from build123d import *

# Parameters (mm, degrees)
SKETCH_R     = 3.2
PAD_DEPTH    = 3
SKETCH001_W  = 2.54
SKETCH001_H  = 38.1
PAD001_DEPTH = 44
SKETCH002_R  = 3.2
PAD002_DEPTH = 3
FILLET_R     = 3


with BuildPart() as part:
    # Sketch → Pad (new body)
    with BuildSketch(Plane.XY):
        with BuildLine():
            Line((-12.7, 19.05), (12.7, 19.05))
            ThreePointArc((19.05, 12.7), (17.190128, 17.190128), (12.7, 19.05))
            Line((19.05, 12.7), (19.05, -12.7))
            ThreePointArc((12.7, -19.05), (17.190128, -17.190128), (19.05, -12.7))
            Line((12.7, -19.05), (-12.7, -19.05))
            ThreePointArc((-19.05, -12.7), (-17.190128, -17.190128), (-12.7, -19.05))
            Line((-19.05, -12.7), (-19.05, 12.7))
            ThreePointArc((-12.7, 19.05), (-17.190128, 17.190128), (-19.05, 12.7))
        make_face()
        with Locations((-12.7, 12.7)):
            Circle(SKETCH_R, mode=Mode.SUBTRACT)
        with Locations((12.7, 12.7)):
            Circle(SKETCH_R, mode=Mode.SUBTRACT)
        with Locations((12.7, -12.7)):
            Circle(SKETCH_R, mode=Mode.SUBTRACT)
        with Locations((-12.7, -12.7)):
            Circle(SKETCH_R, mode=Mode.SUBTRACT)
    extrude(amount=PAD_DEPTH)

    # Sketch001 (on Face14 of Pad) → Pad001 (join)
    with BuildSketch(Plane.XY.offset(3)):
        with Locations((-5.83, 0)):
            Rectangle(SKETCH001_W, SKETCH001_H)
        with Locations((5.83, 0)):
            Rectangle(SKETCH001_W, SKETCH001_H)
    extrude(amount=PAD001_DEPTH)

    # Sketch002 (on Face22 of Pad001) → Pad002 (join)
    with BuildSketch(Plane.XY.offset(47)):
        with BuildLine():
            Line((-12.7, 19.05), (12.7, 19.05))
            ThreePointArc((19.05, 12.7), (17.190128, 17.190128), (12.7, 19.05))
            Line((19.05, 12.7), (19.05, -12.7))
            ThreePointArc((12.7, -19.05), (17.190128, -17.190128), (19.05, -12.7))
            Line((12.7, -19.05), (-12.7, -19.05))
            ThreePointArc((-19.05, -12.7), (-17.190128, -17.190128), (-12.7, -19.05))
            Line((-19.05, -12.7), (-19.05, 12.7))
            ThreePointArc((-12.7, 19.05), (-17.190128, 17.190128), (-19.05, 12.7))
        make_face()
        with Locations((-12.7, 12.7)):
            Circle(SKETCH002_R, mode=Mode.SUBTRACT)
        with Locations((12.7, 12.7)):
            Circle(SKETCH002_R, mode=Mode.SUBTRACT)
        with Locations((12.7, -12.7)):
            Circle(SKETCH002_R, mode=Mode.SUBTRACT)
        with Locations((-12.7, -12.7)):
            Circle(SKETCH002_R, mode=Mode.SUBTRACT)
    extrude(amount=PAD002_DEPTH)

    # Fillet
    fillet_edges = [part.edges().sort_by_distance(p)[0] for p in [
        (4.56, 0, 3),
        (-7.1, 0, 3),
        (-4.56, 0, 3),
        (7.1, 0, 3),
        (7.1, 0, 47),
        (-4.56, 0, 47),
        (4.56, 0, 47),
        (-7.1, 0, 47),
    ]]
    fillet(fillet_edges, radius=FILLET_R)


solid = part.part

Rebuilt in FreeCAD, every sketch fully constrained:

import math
import FreeCAD as App
import Part
import Sketcher
Q = App.Units.Quantity


def edges_at(feature, points):
    """Names of the edges that pass closest to the given points."""
    edges = feature.Shape.Edges
    near = lambda p: min(range(len(edges)), key=lambda i: edges[i].distToShape(Part.Vertex(*p))[0])
    return sorted({f"Edge{near(p) + 1}" for p in points})

doc = App.newDocument("Part")
body = doc.addObject("PartDesign::Body", "Body")

sketch1 = body.newObject("Sketcher::SketchObject", "Sketch")
sketch1.AttachmentSupport = (doc.getObject("XY_Plane"), [""])
sketch1.MapMode = "FlatFace"
sketch1.addGeometry([
    Part.LineSegment(App.Vector(12.7, 19.1, 0), App.Vector(-12.7, 19.1, 0)),
    Part.ArcOfCircle(Part.Circle(App.Vector(-12.7, 12.7, 0), App.Vector(0, 0, 1), 6.4), math.radians(90), math.radians(180)),
    Part.LineSegment(App.Vector(-19.1, 12.7, 0), App.Vector(-19.1, -12.7, 0)),
    Part.ArcOfCircle(Part.Circle(App.Vector(-12.7, -12.7, 0), App.Vector(0, 0, 1), 6.4), math.radians(-180), math.radians(-90)),
    Part.LineSegment(App.Vector(-12.7, -19.1, 0), App.Vector(12.7, -19.1, 0)),
    Part.ArcOfCircle(Part.Circle(App.Vector(12.7, -12.7, 0), App.Vector(0, 0, 1), 6.4), math.radians(-90), math.radians(0)),
    Part.LineSegment(App.Vector(19.1, -12.7, 0), App.Vector(19.1, 12.7, 0)),
    Part.ArcOfCircle(Part.Circle(App.Vector(12.7, 12.7, 0), App.Vector(0, 0, 1), 6.4), math.radians(0), math.radians(90)),
    Part.Circle(App.Vector(12.7, -12.7, 0), App.Vector(0, 0, 1), 3.2),
    Part.Circle(App.Vector(-12.7, -12.7, 0), App.Vector(0, 0, 1), 3.2),
    Part.Circle(App.Vector(12.7, 12.7, 0), App.Vector(0, 0, 1), 3.2),
    Part.Circle(App.Vector(-12.7, 12.7, 0), App.Vector(0, 0, 1), 3.2),
], False)
sketch1.addConstraint([
    Sketcher.Constraint("Tangent", 0, 2, 1, 1),
    Sketcher.Constraint("Tangent", 1, 2, 2, 1),
    Sketcher.Constraint("Tangent", 2, 2, 3, 1),
    Sketcher.Constraint("Tangent", 3, 2, 4, 1),
    Sketcher.Constraint("Tangent", 4, 2, 5, 1),
    Sketcher.Constraint("Tangent", 5, 2, 6, 1),
    Sketcher.Constraint("Tangent", 6, 2, 7, 1),
    Sketcher.Constraint("Tangent", 7, 2, 0, 1),
    Sketcher.Constraint("Horizontal", 0),
    Sketcher.Constraint("Vertical", 2),
    Sketcher.Constraint("Horizontal", 4),
    Sketcher.Constraint("Vertical", 6),
    Sketcher.Constraint("Coincident", 8, 3, 5, 3),
    Sketcher.Constraint("Coincident", 9, 3, 3, 3),
    Sketcher.Constraint("Coincident", 10, 3, 7, 3),
    Sketcher.Constraint("Coincident", 11, 3, 1, 3),
    Sketcher.Constraint("Equal", 1, 3),
    Sketcher.Constraint("Equal", 3, 5),
    Sketcher.Constraint("Equal", 5, 7),
    Sketcher.Constraint("Equal", 8, 9),
    Sketcher.Constraint("Equal", 9, 10),
    Sketcher.Constraint("Equal", 10, 11),
    Sketcher.Constraint("Symmetric", 1, 3, 5, 3, -1, 1),
    Sketcher.Constraint("Equal", 4, 2),
    Sketcher.Constraint("DistanceX", 0, 2, 0, 1, Q("1 in")),
    Sketcher.Constraint("Radius", 1, Q("0.25 in")),
    Sketcher.Constraint("Diameter", 8, 6.4),
])
pad1 = body.newObject("PartDesign::Pad", "Pad")
pad1.Profile = sketch1
pad1.Length = 3

sketch2 = body.newObject("Sketcher::SketchObject", "Sketch001")
sketch2.AttachmentSupport = (doc.getObject("XY_Plane"), [""])
sketch2.MapMode = "FlatFace"
sketch2.AttachmentOffset = App.Placement(App.Vector(0, 0, 3), App.Rotation())
sketch2.addGeometry([
    Part.LineSegment(App.Vector(-7.1, 19.1, 0), App.Vector(-7.1, -19.1, 0)),
    Part.LineSegment(App.Vector(-7.1, -19.1, 0), App.Vector(-4.6, -19.1, 0)),
    Part.LineSegment(App.Vector(-4.6, -19.1, 0), App.Vector(-4.6, 19.1, 0)),
    Part.LineSegment(App.Vector(-4.6, 19.1, 0), App.Vector(-7.1, 19.1, 0)),
    Part.LineSegment(App.Vector(4.6, 19.1, 0), App.Vector(4.6, -19.1, 0)),
    Part.LineSegment(App.Vector(4.6, -19.1, 0), App.Vector(7.1, -19.1, 0)),
    Part.LineSegment(App.Vector(7.1, -19.1, 0), App.Vector(7.1, 19.1, 0)),
    Part.LineSegment(App.Vector(7.1, 19.1, 0), App.Vector(4.6, 19.1, 0)),
], False)
sketch2.addConstraint([
    Sketcher.Constraint("Coincident", 0, 2, 1, 1),
    Sketcher.Constraint("Coincident", 1, 2, 2, 1),
    Sketcher.Constraint("Coincident", 2, 2, 3, 1),
    Sketcher.Constraint("Coincident", 3, 2, 0, 1),
    Sketcher.Constraint("Coincident", 4, 2, 5, 1),
    Sketcher.Constraint("Coincident", 5, 2, 6, 1),
    Sketcher.Constraint("Coincident", 6, 2, 7, 1),
    Sketcher.Constraint("Coincident", 7, 2, 4, 1),
    Sketcher.Constraint("Vertical", 0),
    Sketcher.Constraint("Horizontal", 1),
    Sketcher.Constraint("Vertical", 2),
    Sketcher.Constraint("Horizontal", 3),
    Sketcher.Constraint("Vertical", 4),
    Sketcher.Constraint("Horizontal", 5),
    Sketcher.Constraint("Vertical", 6),
    Sketcher.Constraint("Horizontal", 7),
    Sketcher.Constraint("Symmetric", 2, 2, 4, 2, -1, 1),
    Sketcher.Constraint("Symmetric", 0, 2, 6, 2, -1, 1),
    Sketcher.Constraint("Horizontal", 1, 2, 4, 2),
    Sketcher.Constraint("DistanceX", 1, 1, 1, 2, Q("0.1 in")),
    Sketcher.Constraint("DistanceY", 0, 2, 0, 1, Q("1.5 in")),
    Sketcher.Constraint("DistanceX", 0, 2, -1, 1, 7.1),
])
pad2 = body.newObject("PartDesign::Pad", "Pad001")
pad2.Profile = sketch2
pad2.Length = 44

sketch3 = body.newObject("Sketcher::SketchObject", "Sketch002")
sketch3.AttachmentSupport = (doc.getObject("XY_Plane"), [""])
sketch3.MapMode = "FlatFace"
sketch3.AttachmentOffset = App.Placement(App.Vector(0, 0, 47), App.Rotation())
sketch3.addGeometry([
    Part.LineSegment(App.Vector(12.7, 19.1, 0), App.Vector(-12.7, 19.1, 0)),
    Part.ArcOfCircle(Part.Circle(App.Vector(-12.7, 12.7, 0), App.Vector(0, 0, 1), 6.4), math.radians(90), math.radians(180)),
    Part.LineSegment(App.Vector(-19.1, 12.7, 0), App.Vector(-19.1, -12.7, 0)),
    Part.ArcOfCircle(Part.Circle(App.Vector(-12.7, -12.7, 0), App.Vector(0, 0, 1), 6.4), math.radians(-180), math.radians(-90)),
    Part.LineSegment(App.Vector(-12.7, -19.1, 0), App.Vector(12.7, -19.1, 0)),
    Part.ArcOfCircle(Part.Circle(App.Vector(12.7, -12.7, 0), App.Vector(0, 0, 1), 6.4), math.radians(-90), math.radians(0)),
    Part.LineSegment(App.Vector(19.1, -12.7, 0), App.Vector(19.1, 12.7, 0)),
    Part.ArcOfCircle(Part.Circle(App.Vector(12.7, 12.7, 0), App.Vector(0, 0, 1), 6.4), math.radians(0), math.radians(90)),
    Part.Circle(App.Vector(12.7, -12.7, 0), App.Vector(0, 0, 1), 3.2),
    Part.Circle(App.Vector(-12.7, -12.7, 0), App.Vector(0, 0, 1), 3.2),
    Part.Circle(App.Vector(12.7, 12.7, 0), App.Vector(0, 0, 1), 3.2),
    Part.Circle(App.Vector(-12.7, 12.7, 0), App.Vector(0, 0, 1), 3.2),
], False)
sketch3.addConstraint([
    Sketcher.Constraint("Tangent", 0, 2, 1, 1),
    Sketcher.Constraint("Tangent", 1, 2, 2, 1),
    Sketcher.Constraint("Tangent", 2, 2, 3, 1),
    Sketcher.Constraint("Tangent", 3, 2, 4, 1),
    Sketcher.Constraint("Tangent", 4, 2, 5, 1),
    Sketcher.Constraint("Tangent", 5, 2, 6, 1),
    Sketcher.Constraint("Tangent", 6, 2, 7, 1),
    Sketcher.Constraint("Tangent", 7, 2, 0, 1),
    Sketcher.Constraint("Horizontal", 0),
    Sketcher.Constraint("Vertical", 2),
    Sketcher.Constraint("Horizontal", 4),
    Sketcher.Constraint("Vertical", 6),
    Sketcher.Constraint("Coincident", 8, 3, 5, 3),
    Sketcher.Constraint("Coincident", 9, 3, 3, 3),
    Sketcher.Constraint("Coincident", 10, 3, 7, 3),
    Sketcher.Constraint("Coincident", 11, 3, 1, 3),
    Sketcher.Constraint("Equal", 1, 3),
    Sketcher.Constraint("Equal", 3, 5),
    Sketcher.Constraint("Equal", 5, 7),
    Sketcher.Constraint("Equal", 8, 9),
    Sketcher.Constraint("Equal", 9, 10),
    Sketcher.Constraint("Equal", 10, 11),
    Sketcher.Constraint("Symmetric", 1, 3, 5, 3, -1, 1),
    Sketcher.Constraint("Equal", 4, 2),
    Sketcher.Constraint("DistanceX", 0, 2, 0, 1, Q("1 in")),
    Sketcher.Constraint("Radius", 1, Q("0.25 in")),
    Sketcher.Constraint("Diameter", 8, 6.4),
])
pad3 = body.newObject("PartDesign::Pad", "Pad002")
pad3.Profile = sketch3
pad3.Length = 3
doc.recompute()

fillet = body.newObject("PartDesign::Fillet", "Fillet")
fillet.Base = (pad3, edges_at(pad3, [
    (4.56, 0, 3),
    (-7.1, 0, 3),
    (-4.56, 0, 3),
    (7.1, 0, 3),
    (7.1, 0, 47),
    (-4.56, 0, 47),
    (4.56, 0, 47),
    (-7.1, 0, 47),
]))
fillet.Radius = 3

doc.recompute()
